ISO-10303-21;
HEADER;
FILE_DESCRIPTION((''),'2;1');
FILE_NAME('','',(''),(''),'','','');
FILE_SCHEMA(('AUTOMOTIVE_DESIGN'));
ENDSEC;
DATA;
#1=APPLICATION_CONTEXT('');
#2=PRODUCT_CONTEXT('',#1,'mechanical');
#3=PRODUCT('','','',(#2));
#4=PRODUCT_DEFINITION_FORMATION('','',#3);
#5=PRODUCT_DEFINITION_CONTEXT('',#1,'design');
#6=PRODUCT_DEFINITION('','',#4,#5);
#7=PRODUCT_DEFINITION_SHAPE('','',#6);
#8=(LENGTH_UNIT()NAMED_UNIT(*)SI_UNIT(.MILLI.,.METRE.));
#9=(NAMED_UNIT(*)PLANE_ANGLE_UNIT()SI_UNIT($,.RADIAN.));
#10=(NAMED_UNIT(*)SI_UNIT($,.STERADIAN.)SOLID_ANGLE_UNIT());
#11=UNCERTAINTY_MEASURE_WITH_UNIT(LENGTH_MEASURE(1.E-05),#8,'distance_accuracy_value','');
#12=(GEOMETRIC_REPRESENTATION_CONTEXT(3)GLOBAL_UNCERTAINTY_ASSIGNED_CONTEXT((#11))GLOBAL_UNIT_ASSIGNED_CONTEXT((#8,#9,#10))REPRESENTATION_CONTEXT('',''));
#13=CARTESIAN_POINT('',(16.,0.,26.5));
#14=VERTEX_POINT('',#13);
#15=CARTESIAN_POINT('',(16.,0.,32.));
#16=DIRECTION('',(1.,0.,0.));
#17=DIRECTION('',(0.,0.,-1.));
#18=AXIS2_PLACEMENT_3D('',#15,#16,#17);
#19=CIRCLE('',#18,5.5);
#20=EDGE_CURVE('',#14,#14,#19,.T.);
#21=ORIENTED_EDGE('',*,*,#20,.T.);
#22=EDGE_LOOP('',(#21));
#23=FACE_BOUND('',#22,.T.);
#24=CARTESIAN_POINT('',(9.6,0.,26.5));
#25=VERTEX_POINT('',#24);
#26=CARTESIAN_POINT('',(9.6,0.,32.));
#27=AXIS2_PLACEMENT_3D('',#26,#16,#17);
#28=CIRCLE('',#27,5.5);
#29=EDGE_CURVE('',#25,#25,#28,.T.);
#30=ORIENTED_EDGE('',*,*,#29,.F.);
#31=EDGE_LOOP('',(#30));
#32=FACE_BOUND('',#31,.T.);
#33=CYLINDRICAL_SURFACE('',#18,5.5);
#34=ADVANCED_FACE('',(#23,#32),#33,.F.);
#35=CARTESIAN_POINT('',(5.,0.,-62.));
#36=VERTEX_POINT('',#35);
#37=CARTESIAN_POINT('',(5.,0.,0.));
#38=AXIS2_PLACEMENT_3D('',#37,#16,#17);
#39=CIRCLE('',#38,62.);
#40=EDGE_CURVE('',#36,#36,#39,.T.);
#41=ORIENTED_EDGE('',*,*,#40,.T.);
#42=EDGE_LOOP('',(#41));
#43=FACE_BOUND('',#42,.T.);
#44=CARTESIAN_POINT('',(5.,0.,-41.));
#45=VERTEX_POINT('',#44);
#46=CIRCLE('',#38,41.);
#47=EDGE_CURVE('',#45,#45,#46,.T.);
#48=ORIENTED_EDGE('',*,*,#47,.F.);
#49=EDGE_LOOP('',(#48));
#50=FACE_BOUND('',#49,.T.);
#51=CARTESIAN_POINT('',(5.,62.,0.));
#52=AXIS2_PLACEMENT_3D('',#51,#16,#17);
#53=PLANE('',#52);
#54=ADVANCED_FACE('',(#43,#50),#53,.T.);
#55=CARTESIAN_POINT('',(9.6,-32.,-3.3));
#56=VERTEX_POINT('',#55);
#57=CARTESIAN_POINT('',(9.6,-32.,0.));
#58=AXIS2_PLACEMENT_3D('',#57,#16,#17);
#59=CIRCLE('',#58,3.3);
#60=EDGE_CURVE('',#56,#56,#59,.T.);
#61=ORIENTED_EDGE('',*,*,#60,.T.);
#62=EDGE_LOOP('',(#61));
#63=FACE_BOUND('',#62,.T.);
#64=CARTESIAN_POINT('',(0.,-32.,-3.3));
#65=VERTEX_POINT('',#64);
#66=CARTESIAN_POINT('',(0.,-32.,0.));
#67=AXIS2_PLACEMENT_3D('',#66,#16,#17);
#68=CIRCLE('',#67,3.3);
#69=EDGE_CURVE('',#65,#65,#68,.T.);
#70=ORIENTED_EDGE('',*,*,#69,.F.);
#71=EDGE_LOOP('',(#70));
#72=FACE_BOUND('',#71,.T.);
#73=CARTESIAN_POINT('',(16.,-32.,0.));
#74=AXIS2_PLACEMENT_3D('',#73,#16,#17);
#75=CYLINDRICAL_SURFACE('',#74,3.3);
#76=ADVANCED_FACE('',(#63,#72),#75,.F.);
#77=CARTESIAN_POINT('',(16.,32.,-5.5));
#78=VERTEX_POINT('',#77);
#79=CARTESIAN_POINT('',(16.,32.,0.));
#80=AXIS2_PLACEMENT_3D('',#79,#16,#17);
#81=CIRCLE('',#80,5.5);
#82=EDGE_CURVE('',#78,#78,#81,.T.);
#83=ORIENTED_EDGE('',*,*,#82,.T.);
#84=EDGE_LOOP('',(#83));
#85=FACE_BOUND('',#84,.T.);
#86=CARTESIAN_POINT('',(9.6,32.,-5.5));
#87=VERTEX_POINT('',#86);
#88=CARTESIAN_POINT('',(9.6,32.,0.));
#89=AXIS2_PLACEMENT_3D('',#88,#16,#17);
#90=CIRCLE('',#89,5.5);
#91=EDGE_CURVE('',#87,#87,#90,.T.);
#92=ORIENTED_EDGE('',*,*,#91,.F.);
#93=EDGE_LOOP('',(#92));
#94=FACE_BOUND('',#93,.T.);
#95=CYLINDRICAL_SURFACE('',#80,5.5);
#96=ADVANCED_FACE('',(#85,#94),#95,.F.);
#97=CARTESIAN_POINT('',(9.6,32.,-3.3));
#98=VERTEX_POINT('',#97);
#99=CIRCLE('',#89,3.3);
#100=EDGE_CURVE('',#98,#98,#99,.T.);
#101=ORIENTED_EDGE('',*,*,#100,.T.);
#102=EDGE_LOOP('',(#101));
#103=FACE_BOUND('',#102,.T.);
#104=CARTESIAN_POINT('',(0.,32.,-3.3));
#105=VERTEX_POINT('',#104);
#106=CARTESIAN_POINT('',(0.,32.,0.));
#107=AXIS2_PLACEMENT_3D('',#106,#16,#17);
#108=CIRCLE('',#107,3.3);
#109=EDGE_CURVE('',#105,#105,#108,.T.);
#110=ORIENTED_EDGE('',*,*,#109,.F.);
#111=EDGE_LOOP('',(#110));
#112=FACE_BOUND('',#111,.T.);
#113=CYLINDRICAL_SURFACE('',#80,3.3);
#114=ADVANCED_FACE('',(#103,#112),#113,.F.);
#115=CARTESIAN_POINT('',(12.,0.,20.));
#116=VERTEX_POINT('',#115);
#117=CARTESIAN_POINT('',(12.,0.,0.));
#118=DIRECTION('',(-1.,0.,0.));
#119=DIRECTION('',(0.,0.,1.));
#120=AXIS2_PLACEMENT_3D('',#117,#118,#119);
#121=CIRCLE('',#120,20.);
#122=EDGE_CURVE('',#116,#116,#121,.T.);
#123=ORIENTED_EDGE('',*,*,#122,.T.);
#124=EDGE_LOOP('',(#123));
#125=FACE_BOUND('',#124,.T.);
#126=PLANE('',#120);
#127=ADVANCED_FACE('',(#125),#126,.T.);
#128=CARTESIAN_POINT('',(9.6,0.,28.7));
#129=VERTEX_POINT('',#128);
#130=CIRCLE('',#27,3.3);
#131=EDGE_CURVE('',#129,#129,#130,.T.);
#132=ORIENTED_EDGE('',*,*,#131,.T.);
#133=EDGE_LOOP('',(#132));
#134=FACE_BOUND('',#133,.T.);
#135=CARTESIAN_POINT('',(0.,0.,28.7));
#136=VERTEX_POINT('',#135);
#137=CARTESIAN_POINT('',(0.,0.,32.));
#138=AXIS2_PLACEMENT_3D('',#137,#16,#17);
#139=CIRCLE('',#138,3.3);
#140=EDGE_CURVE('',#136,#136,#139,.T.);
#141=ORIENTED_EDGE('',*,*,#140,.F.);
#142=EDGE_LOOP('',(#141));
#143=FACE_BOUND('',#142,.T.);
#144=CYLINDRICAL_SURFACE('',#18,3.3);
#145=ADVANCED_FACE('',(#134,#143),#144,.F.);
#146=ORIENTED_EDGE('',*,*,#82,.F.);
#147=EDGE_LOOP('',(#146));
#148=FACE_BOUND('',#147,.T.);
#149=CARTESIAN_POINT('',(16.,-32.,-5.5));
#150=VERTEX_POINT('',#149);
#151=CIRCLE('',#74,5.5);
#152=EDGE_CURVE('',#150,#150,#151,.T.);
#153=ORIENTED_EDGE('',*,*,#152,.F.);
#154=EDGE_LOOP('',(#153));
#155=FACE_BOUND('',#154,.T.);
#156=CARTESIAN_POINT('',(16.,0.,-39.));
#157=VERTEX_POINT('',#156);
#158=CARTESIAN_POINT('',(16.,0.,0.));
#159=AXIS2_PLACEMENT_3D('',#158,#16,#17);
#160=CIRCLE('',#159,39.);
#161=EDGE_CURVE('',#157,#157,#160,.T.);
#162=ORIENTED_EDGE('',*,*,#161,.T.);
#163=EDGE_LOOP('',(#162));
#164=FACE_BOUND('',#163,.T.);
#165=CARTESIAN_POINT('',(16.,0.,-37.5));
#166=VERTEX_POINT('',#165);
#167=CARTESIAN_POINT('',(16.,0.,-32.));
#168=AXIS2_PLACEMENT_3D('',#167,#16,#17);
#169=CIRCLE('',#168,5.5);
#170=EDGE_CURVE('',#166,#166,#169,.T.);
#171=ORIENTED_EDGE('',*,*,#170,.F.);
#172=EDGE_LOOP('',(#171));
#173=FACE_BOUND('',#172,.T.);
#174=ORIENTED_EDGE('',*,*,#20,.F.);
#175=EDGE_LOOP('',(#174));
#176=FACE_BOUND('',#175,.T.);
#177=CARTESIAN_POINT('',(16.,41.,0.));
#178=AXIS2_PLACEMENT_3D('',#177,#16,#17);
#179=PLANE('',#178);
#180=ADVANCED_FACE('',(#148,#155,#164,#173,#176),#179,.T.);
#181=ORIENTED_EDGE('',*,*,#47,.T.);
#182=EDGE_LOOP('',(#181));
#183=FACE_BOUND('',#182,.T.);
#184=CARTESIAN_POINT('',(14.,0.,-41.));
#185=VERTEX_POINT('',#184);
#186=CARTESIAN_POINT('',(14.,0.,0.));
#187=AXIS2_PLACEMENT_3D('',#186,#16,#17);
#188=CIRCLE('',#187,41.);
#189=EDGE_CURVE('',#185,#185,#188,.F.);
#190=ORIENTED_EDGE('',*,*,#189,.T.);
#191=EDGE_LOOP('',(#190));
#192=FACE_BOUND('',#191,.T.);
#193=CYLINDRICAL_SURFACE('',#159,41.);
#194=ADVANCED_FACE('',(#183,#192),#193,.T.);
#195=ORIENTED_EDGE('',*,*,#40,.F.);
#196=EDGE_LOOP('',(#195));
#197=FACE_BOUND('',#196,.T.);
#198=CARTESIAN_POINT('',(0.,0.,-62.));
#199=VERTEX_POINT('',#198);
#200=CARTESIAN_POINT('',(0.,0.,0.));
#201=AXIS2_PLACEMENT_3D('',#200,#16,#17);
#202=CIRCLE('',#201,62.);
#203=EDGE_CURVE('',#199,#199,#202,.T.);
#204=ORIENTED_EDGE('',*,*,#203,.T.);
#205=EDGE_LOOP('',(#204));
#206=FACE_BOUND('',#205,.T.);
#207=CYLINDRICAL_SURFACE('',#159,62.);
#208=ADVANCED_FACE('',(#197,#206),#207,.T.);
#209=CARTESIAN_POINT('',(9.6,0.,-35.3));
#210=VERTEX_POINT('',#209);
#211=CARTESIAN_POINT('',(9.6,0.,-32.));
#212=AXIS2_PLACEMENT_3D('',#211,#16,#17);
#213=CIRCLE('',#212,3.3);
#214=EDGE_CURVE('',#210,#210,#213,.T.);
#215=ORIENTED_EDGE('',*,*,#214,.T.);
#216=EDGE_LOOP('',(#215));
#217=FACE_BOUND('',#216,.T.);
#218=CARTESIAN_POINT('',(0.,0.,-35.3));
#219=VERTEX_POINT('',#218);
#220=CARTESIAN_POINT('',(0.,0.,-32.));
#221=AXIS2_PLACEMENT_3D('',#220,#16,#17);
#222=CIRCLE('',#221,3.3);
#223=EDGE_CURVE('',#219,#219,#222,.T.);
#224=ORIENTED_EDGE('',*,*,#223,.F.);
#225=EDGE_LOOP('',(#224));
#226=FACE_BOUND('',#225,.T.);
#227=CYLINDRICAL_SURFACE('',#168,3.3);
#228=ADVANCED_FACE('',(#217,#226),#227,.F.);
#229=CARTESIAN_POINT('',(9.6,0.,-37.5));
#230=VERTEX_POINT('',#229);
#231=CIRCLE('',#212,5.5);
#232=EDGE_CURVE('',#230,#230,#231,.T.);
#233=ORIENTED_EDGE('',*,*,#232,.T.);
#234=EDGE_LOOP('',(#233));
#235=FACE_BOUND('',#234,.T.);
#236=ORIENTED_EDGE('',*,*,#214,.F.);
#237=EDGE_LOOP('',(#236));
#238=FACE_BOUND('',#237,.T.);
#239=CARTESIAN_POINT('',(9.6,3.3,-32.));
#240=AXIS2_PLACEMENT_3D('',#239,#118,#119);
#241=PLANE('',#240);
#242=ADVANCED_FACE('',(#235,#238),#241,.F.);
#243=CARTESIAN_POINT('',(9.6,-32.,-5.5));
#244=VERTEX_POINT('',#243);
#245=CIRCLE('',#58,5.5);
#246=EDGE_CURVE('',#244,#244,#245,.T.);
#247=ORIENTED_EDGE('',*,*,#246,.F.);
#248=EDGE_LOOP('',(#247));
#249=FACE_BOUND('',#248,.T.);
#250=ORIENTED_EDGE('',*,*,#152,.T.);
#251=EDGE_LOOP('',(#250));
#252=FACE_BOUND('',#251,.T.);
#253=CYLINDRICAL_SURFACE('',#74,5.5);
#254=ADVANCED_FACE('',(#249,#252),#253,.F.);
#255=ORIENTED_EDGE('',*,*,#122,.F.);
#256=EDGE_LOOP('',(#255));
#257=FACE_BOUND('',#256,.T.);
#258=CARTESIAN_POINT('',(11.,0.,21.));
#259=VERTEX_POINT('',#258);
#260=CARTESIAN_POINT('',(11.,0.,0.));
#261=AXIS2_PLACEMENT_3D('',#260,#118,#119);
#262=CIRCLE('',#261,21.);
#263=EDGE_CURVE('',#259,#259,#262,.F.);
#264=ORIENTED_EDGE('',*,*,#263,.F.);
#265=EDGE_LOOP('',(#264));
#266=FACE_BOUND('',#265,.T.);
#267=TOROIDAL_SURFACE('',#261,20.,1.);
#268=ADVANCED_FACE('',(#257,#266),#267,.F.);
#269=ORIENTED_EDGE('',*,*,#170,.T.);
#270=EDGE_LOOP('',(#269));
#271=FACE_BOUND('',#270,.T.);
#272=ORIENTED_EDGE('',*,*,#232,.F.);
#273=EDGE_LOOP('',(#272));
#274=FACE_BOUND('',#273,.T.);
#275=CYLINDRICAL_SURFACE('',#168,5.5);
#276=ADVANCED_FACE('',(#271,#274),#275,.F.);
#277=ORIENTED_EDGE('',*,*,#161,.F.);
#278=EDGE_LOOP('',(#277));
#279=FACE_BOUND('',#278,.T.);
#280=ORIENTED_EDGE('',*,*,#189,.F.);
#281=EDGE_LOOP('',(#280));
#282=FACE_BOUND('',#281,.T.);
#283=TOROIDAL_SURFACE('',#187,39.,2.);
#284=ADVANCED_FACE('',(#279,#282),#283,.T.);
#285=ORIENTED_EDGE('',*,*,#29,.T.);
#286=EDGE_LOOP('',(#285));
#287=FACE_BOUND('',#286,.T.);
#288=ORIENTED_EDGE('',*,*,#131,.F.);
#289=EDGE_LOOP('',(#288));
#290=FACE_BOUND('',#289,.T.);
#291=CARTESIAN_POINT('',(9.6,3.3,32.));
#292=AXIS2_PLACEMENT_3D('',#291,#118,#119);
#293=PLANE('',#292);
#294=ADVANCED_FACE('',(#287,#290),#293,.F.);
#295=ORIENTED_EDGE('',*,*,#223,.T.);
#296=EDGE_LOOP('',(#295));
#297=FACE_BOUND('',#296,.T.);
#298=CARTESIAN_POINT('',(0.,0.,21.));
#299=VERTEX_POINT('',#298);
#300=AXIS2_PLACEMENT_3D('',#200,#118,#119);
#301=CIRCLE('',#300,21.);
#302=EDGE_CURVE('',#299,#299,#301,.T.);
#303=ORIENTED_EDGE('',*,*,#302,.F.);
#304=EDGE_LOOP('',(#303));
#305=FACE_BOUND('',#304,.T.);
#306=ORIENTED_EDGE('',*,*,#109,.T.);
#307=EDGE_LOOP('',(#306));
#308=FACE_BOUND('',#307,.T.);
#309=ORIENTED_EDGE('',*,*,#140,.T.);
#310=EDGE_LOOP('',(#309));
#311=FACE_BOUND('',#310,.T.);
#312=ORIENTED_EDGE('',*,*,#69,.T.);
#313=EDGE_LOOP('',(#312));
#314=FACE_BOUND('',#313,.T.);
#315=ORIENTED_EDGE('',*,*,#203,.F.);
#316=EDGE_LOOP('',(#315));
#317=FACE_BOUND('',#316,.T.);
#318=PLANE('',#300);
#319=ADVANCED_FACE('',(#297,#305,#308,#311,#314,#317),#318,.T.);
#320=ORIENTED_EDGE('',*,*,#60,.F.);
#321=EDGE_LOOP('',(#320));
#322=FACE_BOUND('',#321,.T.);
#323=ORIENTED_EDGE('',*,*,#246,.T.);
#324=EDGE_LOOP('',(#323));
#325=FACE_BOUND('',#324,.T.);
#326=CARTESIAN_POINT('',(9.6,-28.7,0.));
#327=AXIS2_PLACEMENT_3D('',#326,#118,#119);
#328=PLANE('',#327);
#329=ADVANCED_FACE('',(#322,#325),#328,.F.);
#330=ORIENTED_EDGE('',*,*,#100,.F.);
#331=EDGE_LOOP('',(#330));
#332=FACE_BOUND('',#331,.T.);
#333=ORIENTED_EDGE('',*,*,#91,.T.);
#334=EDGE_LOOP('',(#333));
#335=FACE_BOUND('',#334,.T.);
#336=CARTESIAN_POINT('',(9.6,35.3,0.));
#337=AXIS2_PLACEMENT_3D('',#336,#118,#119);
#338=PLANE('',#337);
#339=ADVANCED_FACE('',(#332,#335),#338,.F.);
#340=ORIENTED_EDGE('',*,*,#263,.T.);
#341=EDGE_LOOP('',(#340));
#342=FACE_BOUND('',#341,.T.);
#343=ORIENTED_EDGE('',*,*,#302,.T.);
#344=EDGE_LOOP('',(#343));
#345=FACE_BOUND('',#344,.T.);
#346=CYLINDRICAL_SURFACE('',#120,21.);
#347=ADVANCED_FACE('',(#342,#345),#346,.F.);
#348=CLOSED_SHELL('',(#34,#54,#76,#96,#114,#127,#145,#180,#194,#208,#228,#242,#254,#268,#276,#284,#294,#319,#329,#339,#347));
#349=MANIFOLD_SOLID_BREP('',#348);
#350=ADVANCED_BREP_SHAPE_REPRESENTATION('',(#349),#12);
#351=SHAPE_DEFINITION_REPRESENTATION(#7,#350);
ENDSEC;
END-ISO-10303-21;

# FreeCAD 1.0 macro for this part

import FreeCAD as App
import Part
import Sketcher
Q = App.Units.Quantity


def edges_at(feature, points):
    """Names of the edges that pass closest to the given points."""
    edges = feature.Shape.Edges
    near = lambda p: min(range(len(edges)), key=lambda i: edges[i].distToShape(Part.Vertex(*p))[0])
    return sorted({f"Edge{near(p) + 1}" for p in points})

doc = App.newDocument("Part")
body = doc.addObject("PartDesign::Body", "Body")

# Sketch on XY plane
sketch1 = body.newObject("Sketcher::SketchObject", "Sketch")
sketch1.AttachmentSupport = (doc.getObject("XY_Plane"), [""])
sketch1.MapMode = "FlatFace"
sketch1.addGeometry([
    Part.LineSegment(App.Vector(0, 62, 0), App.Vector(0, 0, 0)),  # 0
    Part.LineSegment(App.Vector(0, 0, 0), App.Vector(16, 0, 0)),  # 1
    Part.LineSegment(App.Vector(16, 0, 0), App.Vector(16, 41, 0)),  # 2
    Part.LineSegment(App.Vector(16, 41, 0), App.Vector(5, 41, 0)),  # 3
    Part.LineSegment(App.Vector(5, 41, 0), App.Vector(5, 62, 0)),  # 4
    Part.LineSegment(App.Vector(5, 62, 0), App.Vector(0, 62, 0)),  # 5
], False)
sketch1.addConstraint([
    Sketcher.Constraint("Coincident", 0, 2, 1, 1),
    Sketcher.Constraint("Coincident", 1, 2, 2, 1),
    Sketcher.Constraint("Coincident", 2, 2, 3, 1),
    Sketcher.Constraint("Coincident", 3, 2, 4, 1),
    Sketcher.Constraint("Coincident", 4, 2, 5, 1),
    Sketcher.Constraint("Coincident", 5, 2, 0, 1),
    Sketcher.Constraint("Vertical", 0),
    Sketcher.Constraint("Horizontal", 1),
    Sketcher.Constraint("Vertical", 2),
    Sketcher.Constraint("Horizontal", 3),
    Sketcher.Constraint("Vertical", 4),
    Sketcher.Constraint("Horizontal", 5),
    Sketcher.Constraint("Coincident", 0, 2, -1, 1),
    Sketcher.Constraint("DistanceX", 1, 1, 1, 2, Q("16 mm")),
    Sketcher.Constraint("DistanceX", 3, 2, 3, 1, Q("11 mm")),
    Sketcher.Constraint("DistanceY", 0, 2, 0, 1, Q("62 mm")),
    Sketcher.Constraint("DistanceY", 2, 1, 2, 2, Q("41 mm")),
])
revolution = body.newObject("PartDesign::Revolution", "Revolution")
revolution.Profile = sketch1
revolution.ReferenceAxis = (sketch1, ["H_Axis"])
revolution.Angle = 360

# Sketch on YZ plane
sketch2 = body.newObject("Sketcher::SketchObject", "Sketch001")
sketch2.AttachmentSupport = (doc.getObject("YZ_Plane"), [""])
sketch2.MapMode = "FlatFace"
sketch2.addGeometry(Part.Circle(App.Vector(0, 0, 0), App.Vector(0, 0, 1), 21), False)
sketch2.addConstraint([
    Sketcher.Constraint("Coincident", 0, 3, -1, 1),
    Sketcher.Constraint("Diameter", 0, Q("42 mm")),
])
pocket1 = body.newObject("PartDesign::Pocket", "Pocket")
pocket1.Profile = sketch2
pocket1.Length = 12
pocket1.Reversed = True
doc.recompute()

fillet = body.newObject("PartDesign::Fillet", "Fillet")
fillet.Base = (pocket1, edges_at(pocket1, [(12, 0, -21)]))
fillet.Radius = 1
doc.recompute()

fillet2 = body.newObject("PartDesign::Fillet", "Fillet001")
fillet2.Base = (fillet, edges_at(fillet, [(16, 0, 41)]))
fillet2.Radius = 2

# Sketch on YZ plane
sketch3 = body.newObject("Sketcher::SketchObject", "Sketch002")
sketch3.AttachmentSupport = (doc.getObject("YZ_Plane"), [""])
sketch3.MapMode = "FlatFace"
sketch3.AttachmentOffset = App.Placement(App.Vector(0, 0, 16), App.Rotation())
sketch3.addGeometry([
    Part.Circle(App.Vector(-32, 0, 0), App.Vector(0, 0, 1), 3.3),
    Part.Circle(App.Vector(0, -32, 0), App.Vector(0, 0, 1), 3.3),
    Part.Circle(App.Vector(32, 0, 0), App.Vector(0, 0, 1), 3.3),
    Part.Circle(App.Vector(0, 32, 0), App.Vector(0, 0, 1), 3.3),
], False)
sketch3.addConstraint([
    Sketcher.Constraint("Equal", 0, 1),
    Sketcher.Constraint("Equal", 1, 2),
    Sketcher.Constraint("Equal", 2, 3),
    Sketcher.Constraint("Symmetric", 0, 3, 2, 3, -1, 1),
    Sketcher.Constraint("Symmetric", 1, 3, 3, 3, -1, 1),
    Sketcher.Constraint("PointOnObject", 0, 3, -1),
    Sketcher.Constraint("PointOnObject", 1, 3, -2),
    Sketcher.Constraint("Diameter", 0, Q("6.6 mm")),
    Sketcher.Constraint("DistanceX", 0, 3, -1, 1, Q("32 mm")),
    Sketcher.Constraint("DistanceY", 1, 3, -1, 1, Q("32 mm")),
])
doc.recompute()
hole = body.newObject("PartDesign::Hole", "Hole")
hole.Profile = sketch3
hole.ThreadType = "None"
hole.Diameter = 6.6
hole.DepthType = "ThroughAll"
hole.HoleCutType = "Counterbore"
hole.HoleCutDiameter = 11
hole.HoleCutDepth = 6.4

doc.recompute()
